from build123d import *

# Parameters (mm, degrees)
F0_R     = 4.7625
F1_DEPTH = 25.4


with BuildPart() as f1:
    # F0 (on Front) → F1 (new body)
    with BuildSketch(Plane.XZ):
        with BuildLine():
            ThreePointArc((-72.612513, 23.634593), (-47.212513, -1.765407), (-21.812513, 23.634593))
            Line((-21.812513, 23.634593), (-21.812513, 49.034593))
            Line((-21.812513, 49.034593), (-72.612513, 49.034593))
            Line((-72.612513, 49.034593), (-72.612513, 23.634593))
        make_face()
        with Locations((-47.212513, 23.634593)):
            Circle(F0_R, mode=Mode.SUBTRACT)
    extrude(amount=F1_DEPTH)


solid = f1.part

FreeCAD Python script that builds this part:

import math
import FreeCAD as App
import Part
import Sketcher
from FreeCAD import Vector
Q = App.Units.Quantity

doc = App.newDocument("Part")
params = doc.addObject("Spreadsheet::Sheet", "Params")
for row, (alias, value) in enumerate([
    ("sketch1_radius", "1 in"),
    ("sketch1_height", "1 in"),
    ("sketch1_diameter", "0.375 in"),
    ("pad1_length", "1 in"),
], start=1):
    params.set(f"A{row}", alias)
    params.set(f"B{row}", "=" + value)
    params.setAlias(f"B{row}", alias)

body = doc.addObject("PartDesign::Body", "Body")

sketch1 = doc.addObject("Sketcher::SketchObject", "Sketch")
body.addObject(sketch1)
sketch1.AttachmentSupport = (doc.XZ_Plane, [""])
sketch1.MapMode = "FlatFace"
sketch1.addGeometry([
    Part.ArcOfCircle(Part.Circle(Vector(-47.2, 23.6, 0), Vector(0, 0, 1), 25.4), math.radians(180), math.radians(360)),
    Part.LineSegment(Vector(-21.8, 23.6, 0), Vector(-21.8, 49, 0)),
    Part.LineSegment(Vector(-21.8, 49, 0), Vector(-72.6, 49, 0)),
    Part.LineSegment(Vector(-72.6, 49, 0), Vector(-72.6, 23.6, 0)),
    Part.Circle(Vector(-47.2, 23.6, 0), Vector(0, 0, 1), 4.8),
], False)
sketch1.addConstraint([
    Sketcher.Constraint("Tangent", 0, 2, 1, 1),
    Sketcher.Constraint("Coincident", 1, 2, 2, 1),
    Sketcher.Constraint("Coincident", 2, 2, 3, 1),
    Sketcher.Constraint("Tangent", 3, 2, 0, 1),
    Sketcher.Constraint("Vertical", 1),
    Sketcher.Constraint("Horizontal", 2),
    Sketcher.Constraint("Vertical", 3),
    Sketcher.Constraint("Coincident", 4, 3, 0, 3),
    Sketcher.Constraint("Radius", 0, Q("1 in")),
    Sketcher.Constraint("DistanceY", 1, 1, 1, 2, Q("1 in")),
    Sketcher.Constraint("Diameter", 4, Q("0.375 in")),
    Sketcher.Constraint("DistanceX", 0, 3, -1, 1, Q("47.212513 mm")),
    Sketcher.Constraint("DistanceY", -1, 1, 0, 3, Q("23.634593 mm")),
])
sketch1.setExpression("Constraints[8]", "Params.sketch1_radius")
sketch1.setExpression("Constraints[9]", "Params.sketch1_height")
sketch1.setExpression("Constraints[10]", "Params.sketch1_diameter")
pad1 = doc.addObject("PartDesign::Pad", "Pad")
body.addObject(pad1)
pad1.Profile = sketch1
pad1.setExpression("Length", "Params.pad1_length")

doc.recompute()
